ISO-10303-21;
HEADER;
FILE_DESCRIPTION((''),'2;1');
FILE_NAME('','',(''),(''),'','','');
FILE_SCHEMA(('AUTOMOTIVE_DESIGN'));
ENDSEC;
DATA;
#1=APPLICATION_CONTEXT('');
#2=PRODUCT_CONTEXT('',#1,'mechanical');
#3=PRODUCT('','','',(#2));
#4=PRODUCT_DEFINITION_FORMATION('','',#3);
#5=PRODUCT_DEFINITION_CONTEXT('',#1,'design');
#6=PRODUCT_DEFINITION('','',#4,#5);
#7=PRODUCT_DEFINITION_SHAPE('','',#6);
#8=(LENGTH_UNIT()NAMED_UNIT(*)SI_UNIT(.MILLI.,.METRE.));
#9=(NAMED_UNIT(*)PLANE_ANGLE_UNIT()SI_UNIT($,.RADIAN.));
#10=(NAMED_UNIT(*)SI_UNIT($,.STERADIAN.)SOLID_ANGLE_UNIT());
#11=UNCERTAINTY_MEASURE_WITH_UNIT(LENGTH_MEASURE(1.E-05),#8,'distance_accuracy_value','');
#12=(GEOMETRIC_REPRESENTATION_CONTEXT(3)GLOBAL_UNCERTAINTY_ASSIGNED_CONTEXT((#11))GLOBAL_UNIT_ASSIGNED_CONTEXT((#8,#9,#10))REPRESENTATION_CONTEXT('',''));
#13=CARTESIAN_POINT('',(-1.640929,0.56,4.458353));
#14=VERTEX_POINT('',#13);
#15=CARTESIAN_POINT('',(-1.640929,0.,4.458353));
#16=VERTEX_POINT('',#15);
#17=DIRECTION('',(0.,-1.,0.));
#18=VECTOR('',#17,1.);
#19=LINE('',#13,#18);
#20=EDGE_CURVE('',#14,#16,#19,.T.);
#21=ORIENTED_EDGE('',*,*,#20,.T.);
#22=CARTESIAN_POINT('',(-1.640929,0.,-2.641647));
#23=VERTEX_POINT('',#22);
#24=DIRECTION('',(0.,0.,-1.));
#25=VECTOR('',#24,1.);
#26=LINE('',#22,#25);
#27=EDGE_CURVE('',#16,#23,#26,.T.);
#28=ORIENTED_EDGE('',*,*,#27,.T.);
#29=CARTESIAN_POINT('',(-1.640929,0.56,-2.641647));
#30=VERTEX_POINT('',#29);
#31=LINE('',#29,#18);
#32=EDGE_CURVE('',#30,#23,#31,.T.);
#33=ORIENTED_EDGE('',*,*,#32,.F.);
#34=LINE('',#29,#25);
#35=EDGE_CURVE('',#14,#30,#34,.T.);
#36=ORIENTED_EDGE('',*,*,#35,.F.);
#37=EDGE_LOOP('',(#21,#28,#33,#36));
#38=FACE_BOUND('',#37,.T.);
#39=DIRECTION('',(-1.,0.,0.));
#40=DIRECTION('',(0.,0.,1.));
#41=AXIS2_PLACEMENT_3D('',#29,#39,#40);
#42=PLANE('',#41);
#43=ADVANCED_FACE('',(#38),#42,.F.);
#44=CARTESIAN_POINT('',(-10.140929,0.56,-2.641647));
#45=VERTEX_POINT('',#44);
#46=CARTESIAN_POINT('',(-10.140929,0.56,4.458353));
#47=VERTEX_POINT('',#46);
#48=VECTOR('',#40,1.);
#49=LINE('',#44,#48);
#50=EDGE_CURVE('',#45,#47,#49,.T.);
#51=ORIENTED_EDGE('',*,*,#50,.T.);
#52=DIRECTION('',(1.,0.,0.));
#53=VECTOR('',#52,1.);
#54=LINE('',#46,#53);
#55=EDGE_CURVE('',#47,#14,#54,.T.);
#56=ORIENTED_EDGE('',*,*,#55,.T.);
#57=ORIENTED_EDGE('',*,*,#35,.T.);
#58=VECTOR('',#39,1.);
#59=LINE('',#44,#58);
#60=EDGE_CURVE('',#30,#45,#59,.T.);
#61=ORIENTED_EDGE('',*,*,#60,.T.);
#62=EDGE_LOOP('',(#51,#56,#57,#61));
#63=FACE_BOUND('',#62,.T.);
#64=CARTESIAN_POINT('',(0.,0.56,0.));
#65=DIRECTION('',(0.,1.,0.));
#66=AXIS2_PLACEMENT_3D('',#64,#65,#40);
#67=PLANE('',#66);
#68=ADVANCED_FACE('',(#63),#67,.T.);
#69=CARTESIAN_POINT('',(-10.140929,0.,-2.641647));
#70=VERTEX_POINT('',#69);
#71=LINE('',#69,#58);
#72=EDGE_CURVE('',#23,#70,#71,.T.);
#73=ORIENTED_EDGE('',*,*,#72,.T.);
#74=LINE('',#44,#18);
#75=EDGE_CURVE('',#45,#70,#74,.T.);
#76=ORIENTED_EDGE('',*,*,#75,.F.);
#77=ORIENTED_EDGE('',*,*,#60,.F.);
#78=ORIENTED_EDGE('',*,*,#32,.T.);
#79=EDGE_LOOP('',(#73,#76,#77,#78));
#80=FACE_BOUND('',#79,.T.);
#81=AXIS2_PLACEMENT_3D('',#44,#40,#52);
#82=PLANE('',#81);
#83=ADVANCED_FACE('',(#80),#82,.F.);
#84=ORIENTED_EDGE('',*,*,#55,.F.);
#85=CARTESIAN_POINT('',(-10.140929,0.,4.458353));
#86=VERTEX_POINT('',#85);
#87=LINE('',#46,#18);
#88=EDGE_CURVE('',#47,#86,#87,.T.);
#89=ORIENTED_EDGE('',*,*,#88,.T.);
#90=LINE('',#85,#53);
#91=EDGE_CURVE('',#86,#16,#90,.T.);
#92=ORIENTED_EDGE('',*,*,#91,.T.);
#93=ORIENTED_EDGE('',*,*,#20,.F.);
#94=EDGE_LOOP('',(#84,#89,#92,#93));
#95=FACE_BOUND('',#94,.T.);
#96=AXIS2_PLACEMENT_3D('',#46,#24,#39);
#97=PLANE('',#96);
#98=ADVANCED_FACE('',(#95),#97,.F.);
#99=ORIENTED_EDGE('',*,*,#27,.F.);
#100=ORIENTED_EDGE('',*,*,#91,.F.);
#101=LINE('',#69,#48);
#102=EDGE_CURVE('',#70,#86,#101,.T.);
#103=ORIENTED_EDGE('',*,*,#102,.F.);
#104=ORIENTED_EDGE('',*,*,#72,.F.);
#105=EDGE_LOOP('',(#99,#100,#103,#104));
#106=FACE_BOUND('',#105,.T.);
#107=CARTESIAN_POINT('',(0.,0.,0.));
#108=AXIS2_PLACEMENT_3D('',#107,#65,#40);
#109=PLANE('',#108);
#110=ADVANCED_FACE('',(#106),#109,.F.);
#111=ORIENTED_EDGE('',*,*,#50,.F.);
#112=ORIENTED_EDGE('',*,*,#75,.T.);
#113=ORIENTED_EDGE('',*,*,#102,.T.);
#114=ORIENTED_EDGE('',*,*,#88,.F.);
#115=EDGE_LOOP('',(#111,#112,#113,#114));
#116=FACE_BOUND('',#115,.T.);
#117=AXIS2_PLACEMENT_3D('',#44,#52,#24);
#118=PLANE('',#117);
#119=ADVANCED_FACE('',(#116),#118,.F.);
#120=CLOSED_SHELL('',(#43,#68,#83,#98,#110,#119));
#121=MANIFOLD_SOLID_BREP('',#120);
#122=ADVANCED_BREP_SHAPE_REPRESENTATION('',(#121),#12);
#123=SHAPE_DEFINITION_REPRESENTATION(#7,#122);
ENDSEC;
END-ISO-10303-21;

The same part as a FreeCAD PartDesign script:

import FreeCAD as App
import Part
import Sketcher
from FreeCAD import Vector
Q = App.Units.Quantity

doc = App.newDocument("Part")
body = doc.addObject("PartDesign::Body", "Body")

# Sketch on XZ plane
sketch1 = body.newObject("Sketcher::SketchObject", "Sketch")
sketch1.AttachmentSupport = (doc.getObject("XZ_Plane"), [""])
sketch1.MapMode = "FlatFace"
sketch1.addGeometry([
    Part.LineSegment(Vector(-10.140929, -2.641647, 0), Vector(-10.140929, 4.458353, 0)),
    Part.LineSegment(Vector(-10.140929, 4.458353, 0), Vector(-1.640929, 4.458353, 0)),
    Part.LineSegment(Vector(-1.640929, 4.458353, 0), Vector(-1.640929, -2.641647, 0)),
    Part.LineSegment(Vector(-1.640929, -2.641647, 0), Vector(-10.140929, -2.641647, 0)),
], False)
sketch1.addConstraint([
    Sketcher.Constraint("Coincident", 0, 2, 1, 1),
    Sketcher.Constraint("Coincident", 1, 2, 2, 1),
    Sketcher.Constraint("Coincident", 2, 2, 3, 1),
    Sketcher.Constraint("Coincident", 3, 2, 0, 1),
    Sketcher.Constraint("Vertical", 0),
    Sketcher.Constraint("Horizontal", 1),
    Sketcher.Constraint("Vertical", 2),
    Sketcher.Constraint("Horizontal", 3),
    Sketcher.Constraint("DistanceX", 1, 1, 1, 2, Q("8.5 mm")),
    Sketcher.Constraint("DistanceY", 0, 1, 0, 2, Q("7.1 mm")),
    Sketcher.Constraint("DistanceX", 0, 2, -1, 1, Q("10.140929 mm")),
    Sketcher.Constraint("DistanceY", -1, 1, 0, 2, Q("4.458353 mm")),
])
pad1 = body.newObject("PartDesign::Pad", "Pad")
pad1.Profile = sketch1
pad1.Length = 0.56
pad1.Reversed = True

doc.recompute()
